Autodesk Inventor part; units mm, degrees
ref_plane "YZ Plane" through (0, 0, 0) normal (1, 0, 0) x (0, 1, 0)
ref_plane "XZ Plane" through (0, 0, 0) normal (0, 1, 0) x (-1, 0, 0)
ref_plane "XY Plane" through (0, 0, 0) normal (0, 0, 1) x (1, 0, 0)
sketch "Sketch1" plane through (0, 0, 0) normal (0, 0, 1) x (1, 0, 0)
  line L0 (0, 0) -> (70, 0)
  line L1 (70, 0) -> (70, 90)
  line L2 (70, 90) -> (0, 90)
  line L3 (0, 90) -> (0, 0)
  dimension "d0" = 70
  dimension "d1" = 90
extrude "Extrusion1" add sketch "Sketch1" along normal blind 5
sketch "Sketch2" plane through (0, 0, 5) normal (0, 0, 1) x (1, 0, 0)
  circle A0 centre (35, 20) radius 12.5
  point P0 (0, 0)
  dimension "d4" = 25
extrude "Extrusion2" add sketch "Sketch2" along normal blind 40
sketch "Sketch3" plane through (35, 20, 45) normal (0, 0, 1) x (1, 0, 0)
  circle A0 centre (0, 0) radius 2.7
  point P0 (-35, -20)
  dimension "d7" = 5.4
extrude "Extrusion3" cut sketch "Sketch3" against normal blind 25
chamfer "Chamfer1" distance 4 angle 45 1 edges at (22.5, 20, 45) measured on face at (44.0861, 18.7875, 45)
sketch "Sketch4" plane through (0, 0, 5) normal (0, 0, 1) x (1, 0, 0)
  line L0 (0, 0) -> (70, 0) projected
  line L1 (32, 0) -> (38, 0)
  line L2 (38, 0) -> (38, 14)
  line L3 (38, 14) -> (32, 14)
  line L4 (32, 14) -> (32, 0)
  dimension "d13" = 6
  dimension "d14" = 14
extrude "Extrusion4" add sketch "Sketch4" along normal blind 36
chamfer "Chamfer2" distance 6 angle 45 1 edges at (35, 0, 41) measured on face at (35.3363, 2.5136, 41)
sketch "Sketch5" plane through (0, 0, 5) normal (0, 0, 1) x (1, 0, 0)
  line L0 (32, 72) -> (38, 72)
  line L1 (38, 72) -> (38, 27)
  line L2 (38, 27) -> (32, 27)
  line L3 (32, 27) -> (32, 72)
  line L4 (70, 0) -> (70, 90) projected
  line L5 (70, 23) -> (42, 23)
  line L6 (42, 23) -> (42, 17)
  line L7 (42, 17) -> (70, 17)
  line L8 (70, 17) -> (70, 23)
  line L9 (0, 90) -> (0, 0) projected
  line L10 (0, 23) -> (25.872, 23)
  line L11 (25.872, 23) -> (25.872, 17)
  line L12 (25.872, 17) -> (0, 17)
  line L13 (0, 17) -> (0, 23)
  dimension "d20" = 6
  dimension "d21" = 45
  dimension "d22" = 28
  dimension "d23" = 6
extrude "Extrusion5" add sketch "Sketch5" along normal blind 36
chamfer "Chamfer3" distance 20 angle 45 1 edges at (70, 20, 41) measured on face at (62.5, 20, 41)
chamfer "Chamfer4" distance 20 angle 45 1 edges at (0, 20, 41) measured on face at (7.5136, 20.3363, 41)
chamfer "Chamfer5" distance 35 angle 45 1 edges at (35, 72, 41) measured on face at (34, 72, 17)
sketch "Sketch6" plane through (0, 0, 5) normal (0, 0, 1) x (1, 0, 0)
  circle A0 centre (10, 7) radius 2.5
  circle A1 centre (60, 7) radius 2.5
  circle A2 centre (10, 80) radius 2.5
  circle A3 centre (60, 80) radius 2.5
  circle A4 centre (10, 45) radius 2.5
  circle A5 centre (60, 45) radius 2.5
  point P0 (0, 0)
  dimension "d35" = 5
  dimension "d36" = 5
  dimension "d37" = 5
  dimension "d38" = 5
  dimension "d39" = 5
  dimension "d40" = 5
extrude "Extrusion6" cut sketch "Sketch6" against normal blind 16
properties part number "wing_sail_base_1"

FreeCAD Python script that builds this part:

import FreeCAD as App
import Part
import Sketcher

V = App.Vector
Q = App.Units.Quantity


def edges_at(feature, points):
    """Names of the edges that pass closest to the given points."""
    edges = feature.Shape.Edges
    near = lambda p: min(range(len(edges)), key=lambda i: edges[i].distToShape(Part.Vertex(*p))[0])
    return sorted({f"Edge{near(p) + 1}" for p in points})


def add_polygon(sketch, points):
    """Adds a closed chain of lines whose ends are joined by coincident constraints."""
    first, n = sketch.GeometryCount, len(points)
    for a, b in zip(points, points[1:] + points[:1]):
        sketch.addGeometry(Part.LineSegment(App.Vector(*a, 0), App.Vector(*b, 0)), False)
    for i in range(n):
        sketch.addConstraint(Sketcher.Constraint("Coincident", first + i, 2, first + (i + 1) % n, 1))

doc = App.newDocument("Part")
body = doc.addObject("PartDesign::Body", "Body")

sketch1 = body.newObject("Sketcher::SketchObject", "Sketch")
sketch1.AttachmentSupport = (doc.getObject("XY_Plane"), [""])
sketch1.MapMode = "FlatFace"
add_polygon(sketch1, [(0, 90), (0, 0), (70, 0), (70, 90)])
sketch1.addConstraint([
    Sketcher.Constraint("Vertical", 0),
    Sketcher.Constraint("Horizontal", 1),
    Sketcher.Constraint("Vertical", 2),
    Sketcher.Constraint("Horizontal", 3),
    Sketcher.Constraint("Coincident", 0, 2, -1, 1),
    Sketcher.Constraint("DistanceX", 1, 1, 1, 2, Q("70 mm")),
    Sketcher.Constraint("DistanceY", 0, 2, 0, 1, Q("90 mm")),
])
pad1 = body.newObject("PartDesign::Pad", "Pad")
pad1.Profile = sketch1
pad1.Length = 5

sketch2 = body.newObject("Sketcher::SketchObject", "Sketch001")
sketch2.AttachmentSupport = (doc.getObject("XY_Plane"), [""])
sketch2.MapMode = "FlatFace"
sketch2.AttachmentOffset = App.Placement(V(0, 0, 5), App.Rotation())
sketch2.addGeometry(Part.Circle(V(35, 20, 0), V(0, 0, 1), 12.5), False)
sketch2.addConstraint([
    Sketcher.Constraint("Diameter", 0, Q("25 mm")),
    Sketcher.Constraint("DistanceX", -1, 1, 0, 3, Q("35 mm")),
    Sketcher.Constraint("DistanceY", -1, 1, 0, 3, Q("20 mm")),
])
pad2 = body.newObject("PartDesign::Pad", "Pad001")
pad2.Profile = sketch2
pad2.Length = 40

sketch3 = body.newObject("Sketcher::SketchObject", "Sketch002")
sketch3.AttachmentSupport = (doc.getObject("XY_Plane"), [""])
sketch3.MapMode = "FlatFace"
sketch3.AttachmentOffset = App.Placement(V(0, 0, 45), App.Rotation())
sketch3.addGeometry(Part.Circle(V(35, 20, 0), V(0, 0, 1), 2.7), False)
sketch3.addConstraint([
    Sketcher.Constraint("Diameter", 0, Q("5.4 mm")),
    Sketcher.Constraint("DistanceX", -1, 1, 0, 3, Q("35 mm")),
    Sketcher.Constraint("DistanceY", -1, 1, 0, 3, Q("20 mm")),
])
pocket1 = body.newObject("PartDesign::Pocket", "Pocket")
pocket1.Profile = sketch3
pocket1.Length = 25
doc.recompute()

chamfer = body.newObject("PartDesign::Chamfer", "Chamfer")
chamfer.Base = (pocket1, edges_at(pocket1, [(22.5, 20, 45)]))
chamfer.Size = 4

sketch4 = body.newObject("Sketcher::SketchObject", "Sketch003")
sketch4.AttachmentSupport = (doc.getObject("XY_Plane"), [""])
sketch4.MapMode = "FlatFace"
sketch4.AttachmentOffset = App.Placement(V(0, 0, 5), App.Rotation())
add_polygon(sketch4, [(32, 14), (32, 0), (38, 0), (38, 14)])
sketch4.addConstraint([
    Sketcher.Constraint("Vertical", 0),
    Sketcher.Constraint("Horizontal", 1),
    Sketcher.Constraint("Vertical", 2),
    Sketcher.Constraint("Horizontal", 3),
    Sketcher.Constraint("PointOnObject", 0, 2, -1),
    Sketcher.Constraint("DistanceX", 1, 1, 1, 2, Q("6 mm")),
    Sketcher.Constraint("DistanceY", 0, 2, 0, 1, Q("14 mm")),
    Sketcher.Constraint("DistanceX", -1, 1, 0, 2, Q("32 mm")),
])
pad3 = body.newObject("PartDesign::Pad", "Pad002")
pad3.Profile = sketch4
pad3.Length = 36
doc.recompute()

chamfer2 = body.newObject("PartDesign::Chamfer", "Chamfer001")
chamfer2.Base = (pad3, edges_at(pad3, [(35, 0, 41)]))
chamfer2.Size = 6

sketch5 = body.newObject("Sketcher::SketchObject", "Sketch004")
sketch5.AttachmentSupport = (doc.getObject("XY_Plane"), [""])
sketch5.MapMode = "FlatFace"
sketch5.AttachmentOffset = App.Placement(V(0, 0, 5), App.Rotation())
add_polygon(sketch5, [(38, 72), (32, 72), (32, 27), (38, 27)])
add_polygon(sketch5, [(42, 17), (70, 17), (70, 23), (42, 23)])
add_polygon(sketch5, [(25.872, 23), (0, 23), (0, 17), (25.872, 17)])
sketch5.addConstraint([
    Sketcher.Constraint("Horizontal", 0),
    Sketcher.Constraint("Vertical", 1),
    Sketcher.Constraint("Horizontal", 2),
    Sketcher.Constraint("Vertical", 3),
    Sketcher.Constraint("Horizontal", 4),
    Sketcher.Constraint("Vertical", 5),
    Sketcher.Constraint("Horizontal", 6),
    Sketcher.Constraint("Vertical", 7),
    Sketcher.Constraint("Horizontal", 8),
    Sketcher.Constraint("Vertical", 9),
    Sketcher.Constraint("Horizontal", 10),
    Sketcher.Constraint("Vertical", 11),
    Sketcher.Constraint("PointOnObject", 8, 2, -2),
    Sketcher.Constraint("Horizontal", 6, 2, 8, 2),
    Sketcher.Constraint("Horizontal", 7, 2, 9, 2),
    Sketcher.Constraint("Equal", 2, 5),
    Sketcher.Constraint("DistanceX", 0, 2, 0, 1, Q("6 mm")),
    Sketcher.Constraint("DistanceX", 4, 1, 4, 2, Q("28 mm")),
    Sketcher.Constraint("DistanceY", 1, 2, 1, 1, Q("45 mm")),
    Sketcher.Constraint("DistanceX", -1, 1, 0, 2, Q("32 mm")),
    Sketcher.Constraint("DistanceY", -1, 1, 0, 2, Q("72 mm")),
    Sketcher.Constraint("DistanceX", -1, 1, 4, 2, Q("70 mm")),
    Sketcher.Constraint("DistanceY", -1, 1, 4, 2, Q("17 mm")),
    Sketcher.Constraint("DistanceX", 8, 2, 8, 1, Q("25.872 mm")),
])
pad4 = body.newObject("PartDesign::Pad", "Pad003")
pad4.Profile = sketch5
pad4.Length = 36
doc.recompute()

chamfer3 = body.newObject("PartDesign::Chamfer", "Chamfer002")
chamfer3.Base = (pad4, edges_at(pad4, [(70, 20, 41)]))
chamfer3.Size = 20
doc.recompute()

chamfer4 = body.newObject("PartDesign::Chamfer", "Chamfer003")
chamfer4.Base = (chamfer3, edges_at(chamfer3, [(0, 20, 41)]))
chamfer4.Size = 20
doc.recompute()

chamfer5 = body.newObject("PartDesign::Chamfer", "Chamfer004")
chamfer5.Base = (chamfer4, edges_at(chamfer4, [(35, 72, 41)]))
chamfer5.Size = 35

sketch6 = body.newObject("Sketcher::SketchObject", "Sketch005")
sketch6.AttachmentSupport = (doc.getObject("XY_Plane"), [""])
sketch6.MapMode = "FlatFace"
sketch6.AttachmentOffset = App.Placement(V(0, 0, 5), App.Rotation())
sketch6.addGeometry([
    Part.Circle(V(10, 7, 0), V(0, 0, 1), 2.5),
    Part.Circle(V(60, 7, 0), V(0, 0, 1), 2.5),
    Part.Circle(V(10, 80, 0), V(0, 0, 1), 2.5),
    Part.Circle(V(60, 80, 0), V(0, 0, 1), 2.5),
    Part.Circle(V(10, 45, 0), V(0, 0, 1), 2.5),
    Part.Circle(V(60, 45, 0), V(0, 0, 1), 2.5),
], False)
sketch6.addConstraint([
    Sketcher.Constraint("Equal", 0, 1),
    Sketcher.Constraint("Equal", 1, 2),
    Sketcher.Constraint("Equal", 2, 3),
    Sketcher.Constraint("Equal", 3, 4),
    Sketcher.Constraint("Equal", 4, 5),
    Sketcher.Constraint("Horizontal", 0, 3, 1, 3),
    Sketcher.Constraint("Horizontal", 2, 3, 3, 3),
    Sketcher.Constraint("Horizontal", 4, 3, 5, 3),
    Sketcher.Constraint("Vertical", 0, 3, 2, 3),
    Sketcher.Constraint("Vertical", 1, 3, 3, 3),
    Sketcher.Constraint("Vertical", 2, 3, 4, 3),
    Sketcher.Constraint("Vertical", 3, 3, 5, 3),
    Sketcher.Constraint("Diameter", 0, Q("5 mm")),
    Sketcher.Constraint("DistanceX", -1, 1, 0, 3, Q("10 mm")),
    Sketcher.Constraint("DistanceY", -1, 1, 0, 3, Q("7 mm")),
    Sketcher.Constraint("DistanceX", -1, 1, 1, 3, Q("60 mm")),
    Sketcher.Constraint("DistanceY", -1, 1, 2, 3, Q("80 mm")),
    Sketcher.Constraint("DistanceY", -1, 1, 4, 3, Q("45 mm")),
])
pocket2 = body.newObject("PartDesign::Pocket", "Pocket001")
pocket2.Profile = sketch6
pocket2.Length = 16

doc.recompute()
